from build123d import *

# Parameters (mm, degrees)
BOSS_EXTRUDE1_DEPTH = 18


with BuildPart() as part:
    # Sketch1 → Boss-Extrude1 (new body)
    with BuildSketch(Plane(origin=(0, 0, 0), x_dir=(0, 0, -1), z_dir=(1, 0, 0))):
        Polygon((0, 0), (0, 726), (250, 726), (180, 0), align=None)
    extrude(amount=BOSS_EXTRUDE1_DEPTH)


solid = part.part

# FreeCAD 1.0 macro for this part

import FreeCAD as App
import Part
import Sketcher

doc = App.newDocument("Part")
params = doc.addObject("Spreadsheet::Sheet", "Params")
for row, (alias, value) in enumerate([
    ("sketch1_width", "726 mm"),
    ("sketch1_height", "180 mm"),
    ("sketch1_height2", "250 mm"),
    ("pad1_length", "18 mm"),
], start=1):
    params.set(f"A{row}", alias)
    params.set(f"B{row}", "=" + value)
    params.setAlias(f"B{row}", alias)

body = doc.addObject("PartDesign::Body", "Body")

sketch1 = doc.addObject("Sketcher::SketchObject", "Sketch")
body.addObject(sketch1)
sketch1.AttachmentSupport = (doc.YZ_Plane, [""])
sketch1.MapMode = "FlatFace"
sketch1.addGeometry([
    Part.LineSegment(App.Vector(726, 0, 0), App.Vector(0, 0, 0)),
    Part.LineSegment(App.Vector(0, 0, 0), App.Vector(0, -180, 0)),
    Part.LineSegment(App.Vector(0, -180, 0), App.Vector(726, -250, 0)),
    Part.LineSegment(App.Vector(726, -250, 0), App.Vector(726, 0, 0)),
], False)
sketch1.addConstraint([
    Sketcher.Constraint("Coincident", 0, 2, 1, 1),
    Sketcher.Constraint("Coincident", 1, 2, 2, 1),
    Sketcher.Constraint("Coincident", 2, 2, 3, 1),
    Sketcher.Constraint("Coincident", 3, 2, 0, 1),
    Sketcher.Constraint("Horizontal", 0),
    Sketcher.Constraint("Vertical", 1),
    Sketcher.Constraint("Vertical", 3),
    Sketcher.Constraint("Coincident", 0, 2, -1, 1),
    Sketcher.Constraint("DistanceX", 0, 2, 0, 1, 726.0),
    Sketcher.Constraint("DistanceY", 1, 2, 1, 1, 180.0),
    Sketcher.Constraint("DistanceY", 3, 1, 3, 2, 250.0),
])
sketch1.setExpression("Constraints[8]", "Params.sketch1_width")
sketch1.setExpression("Constraints[9]", "Params.sketch1_height")
sketch1.setExpression("Constraints[10]", "Params.sketch1_height2")
pad1 = doc.addObject("PartDesign::Pad", "Pad")
body.addObject(pad1)
pad1.Profile = sketch1
pad1.setExpression("Length", "Params.pad1_length")

doc.recompute()
